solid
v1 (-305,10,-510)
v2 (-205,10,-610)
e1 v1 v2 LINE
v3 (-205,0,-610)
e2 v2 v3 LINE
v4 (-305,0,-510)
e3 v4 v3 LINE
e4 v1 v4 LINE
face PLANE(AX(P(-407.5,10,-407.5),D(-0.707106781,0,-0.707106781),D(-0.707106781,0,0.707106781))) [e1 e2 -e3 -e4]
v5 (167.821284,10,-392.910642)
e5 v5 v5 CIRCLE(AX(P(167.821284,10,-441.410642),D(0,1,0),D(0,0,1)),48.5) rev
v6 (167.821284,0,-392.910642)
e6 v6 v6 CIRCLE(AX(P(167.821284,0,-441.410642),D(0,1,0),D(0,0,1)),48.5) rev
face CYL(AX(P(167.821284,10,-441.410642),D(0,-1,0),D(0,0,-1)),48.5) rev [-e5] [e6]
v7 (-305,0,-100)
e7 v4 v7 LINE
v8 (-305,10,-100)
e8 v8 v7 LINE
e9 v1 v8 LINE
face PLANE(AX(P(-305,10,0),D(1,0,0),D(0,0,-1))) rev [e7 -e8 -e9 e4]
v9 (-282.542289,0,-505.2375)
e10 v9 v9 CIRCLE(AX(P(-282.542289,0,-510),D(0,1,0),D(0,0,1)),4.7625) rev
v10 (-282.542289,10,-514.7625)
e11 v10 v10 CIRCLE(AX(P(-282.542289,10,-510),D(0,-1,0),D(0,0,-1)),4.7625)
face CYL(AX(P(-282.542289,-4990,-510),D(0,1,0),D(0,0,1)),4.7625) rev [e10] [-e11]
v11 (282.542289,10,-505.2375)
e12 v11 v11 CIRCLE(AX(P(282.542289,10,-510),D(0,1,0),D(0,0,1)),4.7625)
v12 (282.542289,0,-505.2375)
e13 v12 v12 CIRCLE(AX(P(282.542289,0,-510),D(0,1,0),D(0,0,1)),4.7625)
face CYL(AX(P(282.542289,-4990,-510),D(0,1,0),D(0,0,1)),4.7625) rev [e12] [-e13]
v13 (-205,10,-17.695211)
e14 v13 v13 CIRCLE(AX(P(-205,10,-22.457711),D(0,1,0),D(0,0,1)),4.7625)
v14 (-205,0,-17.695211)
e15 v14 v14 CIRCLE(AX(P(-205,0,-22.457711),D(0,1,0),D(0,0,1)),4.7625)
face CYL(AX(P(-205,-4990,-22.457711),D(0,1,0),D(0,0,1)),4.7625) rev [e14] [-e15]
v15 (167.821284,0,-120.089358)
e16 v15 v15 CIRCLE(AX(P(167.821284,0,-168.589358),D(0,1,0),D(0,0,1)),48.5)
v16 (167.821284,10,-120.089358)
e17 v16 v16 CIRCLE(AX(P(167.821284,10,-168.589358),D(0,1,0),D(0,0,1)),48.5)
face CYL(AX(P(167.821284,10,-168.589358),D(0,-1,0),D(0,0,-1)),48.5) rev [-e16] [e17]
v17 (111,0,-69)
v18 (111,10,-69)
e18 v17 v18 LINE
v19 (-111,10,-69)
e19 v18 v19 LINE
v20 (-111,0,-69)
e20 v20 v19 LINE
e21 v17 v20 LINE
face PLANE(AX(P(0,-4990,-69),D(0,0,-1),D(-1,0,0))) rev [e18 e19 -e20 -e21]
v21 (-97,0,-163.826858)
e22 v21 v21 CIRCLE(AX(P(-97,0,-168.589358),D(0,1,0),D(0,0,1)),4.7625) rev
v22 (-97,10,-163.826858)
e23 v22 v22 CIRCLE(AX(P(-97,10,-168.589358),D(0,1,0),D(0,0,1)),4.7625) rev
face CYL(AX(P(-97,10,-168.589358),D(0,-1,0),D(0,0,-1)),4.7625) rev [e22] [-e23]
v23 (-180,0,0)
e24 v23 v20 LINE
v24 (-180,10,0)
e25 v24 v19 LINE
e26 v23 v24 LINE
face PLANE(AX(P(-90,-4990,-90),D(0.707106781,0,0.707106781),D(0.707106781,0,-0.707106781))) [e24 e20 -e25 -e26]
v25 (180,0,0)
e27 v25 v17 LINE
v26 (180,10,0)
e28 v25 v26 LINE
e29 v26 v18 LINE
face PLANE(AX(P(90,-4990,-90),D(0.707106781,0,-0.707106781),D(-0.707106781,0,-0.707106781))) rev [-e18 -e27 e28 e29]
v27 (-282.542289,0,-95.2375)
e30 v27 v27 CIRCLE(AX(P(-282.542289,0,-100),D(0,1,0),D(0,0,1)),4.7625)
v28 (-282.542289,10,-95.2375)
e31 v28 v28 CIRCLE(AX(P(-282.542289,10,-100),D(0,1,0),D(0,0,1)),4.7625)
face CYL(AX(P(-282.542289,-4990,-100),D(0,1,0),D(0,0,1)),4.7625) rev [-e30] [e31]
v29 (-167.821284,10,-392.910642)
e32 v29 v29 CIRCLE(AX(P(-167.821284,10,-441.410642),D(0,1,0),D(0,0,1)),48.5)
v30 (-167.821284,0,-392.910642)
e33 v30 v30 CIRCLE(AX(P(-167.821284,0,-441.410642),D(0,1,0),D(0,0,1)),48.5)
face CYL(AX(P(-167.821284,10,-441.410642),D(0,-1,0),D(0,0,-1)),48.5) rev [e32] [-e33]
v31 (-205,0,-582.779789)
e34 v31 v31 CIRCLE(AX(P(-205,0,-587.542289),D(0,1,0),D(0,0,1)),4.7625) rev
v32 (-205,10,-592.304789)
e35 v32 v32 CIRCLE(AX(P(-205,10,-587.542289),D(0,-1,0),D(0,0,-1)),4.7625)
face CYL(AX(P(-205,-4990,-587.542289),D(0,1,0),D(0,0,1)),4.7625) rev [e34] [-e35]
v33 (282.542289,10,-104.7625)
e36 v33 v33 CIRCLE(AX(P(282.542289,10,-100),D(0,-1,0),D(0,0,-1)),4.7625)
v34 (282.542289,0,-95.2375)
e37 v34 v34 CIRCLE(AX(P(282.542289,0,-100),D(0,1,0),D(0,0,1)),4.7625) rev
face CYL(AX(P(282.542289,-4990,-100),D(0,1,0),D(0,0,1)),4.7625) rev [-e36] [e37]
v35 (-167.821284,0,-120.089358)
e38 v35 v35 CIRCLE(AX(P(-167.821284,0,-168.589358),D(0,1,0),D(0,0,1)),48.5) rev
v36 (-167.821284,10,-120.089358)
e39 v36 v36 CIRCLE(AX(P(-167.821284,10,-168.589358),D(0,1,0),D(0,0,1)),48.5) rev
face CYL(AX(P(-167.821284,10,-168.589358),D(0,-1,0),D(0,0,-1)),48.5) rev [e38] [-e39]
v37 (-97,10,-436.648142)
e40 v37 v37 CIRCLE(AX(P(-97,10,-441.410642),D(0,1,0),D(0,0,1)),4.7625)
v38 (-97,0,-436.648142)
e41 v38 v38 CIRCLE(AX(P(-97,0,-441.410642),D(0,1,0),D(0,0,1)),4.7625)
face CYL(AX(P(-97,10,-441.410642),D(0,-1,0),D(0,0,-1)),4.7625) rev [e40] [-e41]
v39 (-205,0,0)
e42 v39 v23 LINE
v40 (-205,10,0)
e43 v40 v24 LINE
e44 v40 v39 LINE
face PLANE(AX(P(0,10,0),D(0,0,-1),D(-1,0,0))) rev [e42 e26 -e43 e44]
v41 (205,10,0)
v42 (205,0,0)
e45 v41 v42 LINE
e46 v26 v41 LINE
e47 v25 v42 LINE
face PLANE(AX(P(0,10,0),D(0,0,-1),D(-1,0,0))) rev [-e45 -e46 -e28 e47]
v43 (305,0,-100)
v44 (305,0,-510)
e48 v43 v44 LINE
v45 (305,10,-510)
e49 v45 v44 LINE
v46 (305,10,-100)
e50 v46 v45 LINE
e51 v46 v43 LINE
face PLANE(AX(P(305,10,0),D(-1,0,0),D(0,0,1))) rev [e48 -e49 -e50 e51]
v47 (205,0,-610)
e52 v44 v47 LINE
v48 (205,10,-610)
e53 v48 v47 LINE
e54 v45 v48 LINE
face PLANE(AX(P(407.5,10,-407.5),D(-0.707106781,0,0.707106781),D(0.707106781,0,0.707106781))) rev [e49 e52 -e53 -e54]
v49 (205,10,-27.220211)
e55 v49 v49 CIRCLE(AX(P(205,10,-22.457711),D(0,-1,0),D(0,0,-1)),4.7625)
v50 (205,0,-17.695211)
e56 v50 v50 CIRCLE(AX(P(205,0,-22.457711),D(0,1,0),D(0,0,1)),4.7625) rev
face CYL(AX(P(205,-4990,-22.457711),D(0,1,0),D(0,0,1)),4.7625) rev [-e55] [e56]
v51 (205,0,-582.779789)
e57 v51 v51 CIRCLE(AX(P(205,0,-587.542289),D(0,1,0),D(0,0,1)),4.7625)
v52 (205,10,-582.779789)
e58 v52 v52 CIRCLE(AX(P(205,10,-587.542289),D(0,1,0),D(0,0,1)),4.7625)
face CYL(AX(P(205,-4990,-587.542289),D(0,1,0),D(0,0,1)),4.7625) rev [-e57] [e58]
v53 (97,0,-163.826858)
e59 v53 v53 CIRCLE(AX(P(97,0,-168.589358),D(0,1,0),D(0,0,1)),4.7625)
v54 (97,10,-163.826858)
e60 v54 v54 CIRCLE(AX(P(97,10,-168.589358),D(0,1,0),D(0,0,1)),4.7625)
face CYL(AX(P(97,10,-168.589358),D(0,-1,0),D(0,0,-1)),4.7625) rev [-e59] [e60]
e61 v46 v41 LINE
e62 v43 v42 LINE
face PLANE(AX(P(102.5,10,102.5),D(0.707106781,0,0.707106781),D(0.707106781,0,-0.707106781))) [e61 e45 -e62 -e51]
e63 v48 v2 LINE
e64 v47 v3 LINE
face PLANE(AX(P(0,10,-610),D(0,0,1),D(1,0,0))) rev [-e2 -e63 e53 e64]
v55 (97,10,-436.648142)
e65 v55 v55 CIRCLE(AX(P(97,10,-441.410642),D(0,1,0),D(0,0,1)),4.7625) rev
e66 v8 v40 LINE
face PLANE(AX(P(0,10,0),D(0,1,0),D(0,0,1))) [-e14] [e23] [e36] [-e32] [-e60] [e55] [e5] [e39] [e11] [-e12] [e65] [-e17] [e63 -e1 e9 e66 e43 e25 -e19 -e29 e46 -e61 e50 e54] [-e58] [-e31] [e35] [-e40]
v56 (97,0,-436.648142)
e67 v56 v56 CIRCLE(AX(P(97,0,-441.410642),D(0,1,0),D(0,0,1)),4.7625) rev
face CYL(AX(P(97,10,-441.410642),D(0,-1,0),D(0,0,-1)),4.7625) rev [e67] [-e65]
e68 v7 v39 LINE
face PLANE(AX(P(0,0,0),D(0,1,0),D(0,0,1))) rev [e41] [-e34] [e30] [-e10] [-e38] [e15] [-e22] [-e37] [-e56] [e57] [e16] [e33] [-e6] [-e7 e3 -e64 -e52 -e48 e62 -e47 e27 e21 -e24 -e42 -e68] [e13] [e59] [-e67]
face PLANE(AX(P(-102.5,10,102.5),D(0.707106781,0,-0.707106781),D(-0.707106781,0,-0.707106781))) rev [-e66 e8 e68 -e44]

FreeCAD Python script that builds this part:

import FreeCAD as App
import Part
import Sketcher


def add_polygon(sketch, points):
    """Adds a closed chain of lines whose ends are joined by coincident constraints."""
    first, n = sketch.GeometryCount, len(points)
    for a, b in zip(points, points[1:] + points[:1]):
        sketch.addGeometry(Part.LineSegment(App.Vector(*a, 0), App.Vector(*b, 0)), False)
    for i in range(n):
        sketch.addConstraint(Sketcher.Constraint("Coincident", first + i, 2, first + (i + 1) % n, 1))

doc = App.newDocument("Part")
params = doc.addObject("Spreadsheet::Sheet", "Params")
for row, (alias, value) in enumerate([
    ("sketch1_diameter", "97 mm"),
    ("sketch1_width", "410 mm"),
    ("pad1_length", "10 mm"),
    ("sketch2_width", "360 mm"),
    ("sketch2_width2", "222 mm"),
    ("pocket1_length", "5000 mm"),
    ("pocket2_length", "5000 mm"),
], start=1):
    params.set(f"A{row}", alias)
    params.set(f"B{row}", "=" + value)
    params.setAlias(f"B{row}", alias)

body = doc.addObject("PartDesign::Body", "Body")

# Sketch on XZ plane
sketch1 = body.newObject("Sketcher::SketchObject", "Sketch")
sketch1.AttachmentSupport = (doc.getObject("XZ_Plane"), [""])
sketch1.MapMode = "FlatFace"
add_polygon(sketch1, [(205, -610), (-205, -610), (-305, -510), (-305, -100), (-205, 0), (205, 0), (305, -100), (305, -510)])  # lines 0-7
sketch1.addGeometry(Part.Circle(App.Vector(-167.8, -168.6, 0), App.Vector(0, 0, 1), 48.5), False)  # 8
sketch1.addGeometry(Part.Circle(App.Vector(-97, -168.6, 0), App.Vector(0, 0, 1), 4.8), False)  # 9
sketch1.addGeometry(Part.Circle(App.Vector(97, -168.6, 0), App.Vector(0, 0, 1), 4.8), False)  # 10
sketch1.addGeometry(Part.Circle(App.Vector(167.8, -168.6, 0), App.Vector(0, 0, 1), 48.5), False)  # 11
sketch1.addGeometry(Part.Circle(App.Vector(-167.8, -441.4, 0), App.Vector(0, 0, 1), 48.5), False)  # 12
sketch1.addGeometry(Part.Circle(App.Vector(-97, -441.4, 0), App.Vector(0, 0, 1), 4.8), False)  # 13
sketch1.addGeometry(Part.Circle(App.Vector(97, -441.4, 0), App.Vector(0, 0, 1), 4.8), False)  # 14
sketch1.addGeometry(Part.Circle(App.Vector(167.8, -441.4, 0), App.Vector(0, 0, 1), 48.5), False)  # 15
sketch1.addConstraint([
    Sketcher.Constraint("Horizontal", 0),
    Sketcher.Constraint("Vertical", 2),
    Sketcher.Constraint("Horizontal", 4),
    Sketcher.Constraint("Vertical", 6),
    Sketcher.Constraint("Equal", 9, 10),
    Sketcher.Constraint("Equal", 8, 11),
    Sketcher.Constraint("Equal", 11, 12),
    Sketcher.Constraint("Equal", 10, 13),
    Sketcher.Constraint("Equal", 13, 14),
    Sketcher.Constraint("Equal", 12, 15),
    Sketcher.Constraint("Symmetric", 3, 2, 4, 2, -1, 1),
    Sketcher.Constraint("Symmetric", 9, 3, 10, 3, -2),
    Sketcher.Constraint("Symmetric", 8, 3, 11, 3, -2),
    Sketcher.Constraint("Symmetric", 13, 3, 14, 3, -2),
    Sketcher.Constraint("Symmetric", 12, 3, 15, 3, -2),
    Sketcher.Constraint("Symmetric", 2, 2, 5, 2, -2),
    Sketcher.Constraint("Perpendicular", 1, 3),
    Sketcher.Constraint("Perpendicular", 3, 5),
    Sketcher.Constraint("Perpendicular", 5, 7),
    Sketcher.Constraint("Horizontal", 8, 3, 9, 3),
    Sketcher.Constraint("Horizontal", 12, 3, 13, 3),
    Sketcher.Constraint("Horizontal", 1, 2, 6, 2),
    Sketcher.Constraint("Vertical", 8, 3, 12, 3),
    Sketcher.Constraint("Vertical", 9, 3, 13, 3),
    Sketcher.Constraint("Vertical", 0, 2, 3, 2),
    Sketcher.Constraint("Equal", 4, 2),
    Sketcher.Constraint("Diameter", 8, 97.0),
    Sketcher.Constraint("DistanceX", 0, 2, 0, 1, 410.0),
    Sketcher.Constraint("Diameter", 9, 9.525),
    Sketcher.Constraint("DistanceX", 9, 3, -1, 1, 97.0),
    Sketcher.Constraint("DistanceY", 0, 2, -1, 1, 610.0),
    Sketcher.Constraint("DistanceX", 8, 3, 11, 3, 335.642569),
    Sketcher.Constraint("DistanceY", 8, 3, -1, 1, 168.589358),
    Sketcher.Constraint("DistanceY", 12, 3, -1, 1, 441.410642),
])
sketch1.setExpression("Constraints[34]", "Params.sketch1_diameter")
sketch1.setExpression("Constraints[35]", "Params.sketch1_width")
pad1 = body.newObject("PartDesign::Pad", "Pad")
pad1.Profile = sketch1
pad1.setExpression("Length", "Params.pad1_length")
pad1.Reversed = True

# Sketch on XZ plane
sketch2 = body.newObject("Sketcher::SketchObject", "Sketch001")
sketch2.AttachmentSupport = (doc.getObject("XZ_Plane"), [""])
sketch2.MapMode = "FlatFace"
sketch2.AttachmentOffset = App.Placement(App.Vector(0, 0, -10), App.Rotation())
add_polygon(sketch2, [(-111, -69), (-180, 0), (180, 0), (111, -69)])  # lines 0-3
sketch2.addConstraint([
    Sketcher.Constraint("Horizontal", 1),
    Sketcher.Constraint("Horizontal", 3),
    Sketcher.Constraint("Symmetric", 0, 2, 1, 2, -1, 1),
    Sketcher.Constraint("Perpendicular", 0, 2),
    Sketcher.Constraint("Equal", 0, 2),
    Sketcher.Constraint("DistanceX", 1, 1, 1, 2, 360.0),
    Sketcher.Constraint("DistanceX", 3, 2, 3, 1, 222.0),
])
sketch2.setExpression("Constraints[9]", "Params.sketch2_width")
sketch2.setExpression("Constraints[10]", "Params.sketch2_width2")
pocket1 = body.newObject("PartDesign::Pocket", "Pocket")
pocket1.Profile = sketch2
pocket1.setExpression("Length", "Params.pocket1_length")
pocket1.Reversed = True

# Sketch on XZ plane
sketch3 = body.newObject("Sketcher::SketchObject", "Sketch002")
sketch3.AttachmentSupport = (doc.getObject("XZ_Plane"), [""])
sketch3.MapMode = "FlatFace"
sketch3.AttachmentOffset = App.Placement(App.Vector(0, 0, -10), App.Rotation())
sketch3.addGeometry([
    Part.Circle(App.Vector(-205, -22.5, 0), App.Vector(0, 0, 1), 4.8),  # 0
    Part.Circle(App.Vector(205, -22.5, 0), App.Vector(0, 0, 1), 4.8),  # 1
    Part.Circle(App.Vector(-282.5, -100, 0), App.Vector(0, 0, 1), 4.8),  # 2
    Part.Circle(App.Vector(282.5, -100, 0), App.Vector(0, 0, 1), 4.8),  # 3
    Part.Circle(App.Vector(282.5, -510, 0), App.Vector(0, 0, 1), 4.8),  # 4
    Part.Circle(App.Vector(205, -587.5, 0), App.Vector(0, 0, 1), 4.8),  # 5
    Part.Circle(App.Vector(-205, -587.5, 0), App.Vector(0, 0, 1), 4.8),  # 6
    Part.Circle(App.Vector(-282.5, -510, 0), App.Vector(0, 0, 1), 4.8),  # 7
], False)
sketch3.addConstraint([
    Sketcher.Constraint("Equal", 0, 1),
    Sketcher.Constraint("Equal", 1, 2),
    Sketcher.Constraint("Equal", 2, 3),
    Sketcher.Constraint("Equal", 3, 4),
    Sketcher.Constraint("Equal", 4, 5),
    Sketcher.Constraint("Equal", 5, 6),
    Sketcher.Constraint("Equal", 6, 7),
    Sketcher.Constraint("Symmetric", 0, 3, 1, 3, -2),
    Sketcher.Constraint("Symmetric", 2, 3, 3, 3, -2),
    Sketcher.Constraint("Symmetric", 5, 3, 6, 3, -2),
    Sketcher.Constraint("Symmetric", 4, 3, 7, 3, -2),
    Sketcher.Constraint("Vertical", 3, 3, 4, 3),
    Sketcher.Constraint("Vertical", 1, 3, 5, 3),
    Sketcher.Constraint("Diameter", 0, 9.525),
    Sketcher.Constraint("DistanceX", 0, 3, -1, 1, 205.0),
    Sketcher.Constraint("DistanceY", 2, 3, -1, 1, 100.0),
    Sketcher.Constraint("DistanceY", 4, 3, -1, 1, 510.0),
    Sketcher.Constraint("DistanceY", 0, 3, -1, 1, 22.457711),
    Sketcher.Constraint("DistanceX", 2, 3, -1, 1, 282.542289),
    Sketcher.Constraint("DistanceY", 5, 3, -1, 1, 587.542289),
])
pocket2 = body.newObject("PartDesign::Pocket", "Pocket001")
pocket2.Profile = sketch3
pocket2.setExpression("Length", "Params.pocket2_length")
pocket2.Reversed = True

doc.recompute()
